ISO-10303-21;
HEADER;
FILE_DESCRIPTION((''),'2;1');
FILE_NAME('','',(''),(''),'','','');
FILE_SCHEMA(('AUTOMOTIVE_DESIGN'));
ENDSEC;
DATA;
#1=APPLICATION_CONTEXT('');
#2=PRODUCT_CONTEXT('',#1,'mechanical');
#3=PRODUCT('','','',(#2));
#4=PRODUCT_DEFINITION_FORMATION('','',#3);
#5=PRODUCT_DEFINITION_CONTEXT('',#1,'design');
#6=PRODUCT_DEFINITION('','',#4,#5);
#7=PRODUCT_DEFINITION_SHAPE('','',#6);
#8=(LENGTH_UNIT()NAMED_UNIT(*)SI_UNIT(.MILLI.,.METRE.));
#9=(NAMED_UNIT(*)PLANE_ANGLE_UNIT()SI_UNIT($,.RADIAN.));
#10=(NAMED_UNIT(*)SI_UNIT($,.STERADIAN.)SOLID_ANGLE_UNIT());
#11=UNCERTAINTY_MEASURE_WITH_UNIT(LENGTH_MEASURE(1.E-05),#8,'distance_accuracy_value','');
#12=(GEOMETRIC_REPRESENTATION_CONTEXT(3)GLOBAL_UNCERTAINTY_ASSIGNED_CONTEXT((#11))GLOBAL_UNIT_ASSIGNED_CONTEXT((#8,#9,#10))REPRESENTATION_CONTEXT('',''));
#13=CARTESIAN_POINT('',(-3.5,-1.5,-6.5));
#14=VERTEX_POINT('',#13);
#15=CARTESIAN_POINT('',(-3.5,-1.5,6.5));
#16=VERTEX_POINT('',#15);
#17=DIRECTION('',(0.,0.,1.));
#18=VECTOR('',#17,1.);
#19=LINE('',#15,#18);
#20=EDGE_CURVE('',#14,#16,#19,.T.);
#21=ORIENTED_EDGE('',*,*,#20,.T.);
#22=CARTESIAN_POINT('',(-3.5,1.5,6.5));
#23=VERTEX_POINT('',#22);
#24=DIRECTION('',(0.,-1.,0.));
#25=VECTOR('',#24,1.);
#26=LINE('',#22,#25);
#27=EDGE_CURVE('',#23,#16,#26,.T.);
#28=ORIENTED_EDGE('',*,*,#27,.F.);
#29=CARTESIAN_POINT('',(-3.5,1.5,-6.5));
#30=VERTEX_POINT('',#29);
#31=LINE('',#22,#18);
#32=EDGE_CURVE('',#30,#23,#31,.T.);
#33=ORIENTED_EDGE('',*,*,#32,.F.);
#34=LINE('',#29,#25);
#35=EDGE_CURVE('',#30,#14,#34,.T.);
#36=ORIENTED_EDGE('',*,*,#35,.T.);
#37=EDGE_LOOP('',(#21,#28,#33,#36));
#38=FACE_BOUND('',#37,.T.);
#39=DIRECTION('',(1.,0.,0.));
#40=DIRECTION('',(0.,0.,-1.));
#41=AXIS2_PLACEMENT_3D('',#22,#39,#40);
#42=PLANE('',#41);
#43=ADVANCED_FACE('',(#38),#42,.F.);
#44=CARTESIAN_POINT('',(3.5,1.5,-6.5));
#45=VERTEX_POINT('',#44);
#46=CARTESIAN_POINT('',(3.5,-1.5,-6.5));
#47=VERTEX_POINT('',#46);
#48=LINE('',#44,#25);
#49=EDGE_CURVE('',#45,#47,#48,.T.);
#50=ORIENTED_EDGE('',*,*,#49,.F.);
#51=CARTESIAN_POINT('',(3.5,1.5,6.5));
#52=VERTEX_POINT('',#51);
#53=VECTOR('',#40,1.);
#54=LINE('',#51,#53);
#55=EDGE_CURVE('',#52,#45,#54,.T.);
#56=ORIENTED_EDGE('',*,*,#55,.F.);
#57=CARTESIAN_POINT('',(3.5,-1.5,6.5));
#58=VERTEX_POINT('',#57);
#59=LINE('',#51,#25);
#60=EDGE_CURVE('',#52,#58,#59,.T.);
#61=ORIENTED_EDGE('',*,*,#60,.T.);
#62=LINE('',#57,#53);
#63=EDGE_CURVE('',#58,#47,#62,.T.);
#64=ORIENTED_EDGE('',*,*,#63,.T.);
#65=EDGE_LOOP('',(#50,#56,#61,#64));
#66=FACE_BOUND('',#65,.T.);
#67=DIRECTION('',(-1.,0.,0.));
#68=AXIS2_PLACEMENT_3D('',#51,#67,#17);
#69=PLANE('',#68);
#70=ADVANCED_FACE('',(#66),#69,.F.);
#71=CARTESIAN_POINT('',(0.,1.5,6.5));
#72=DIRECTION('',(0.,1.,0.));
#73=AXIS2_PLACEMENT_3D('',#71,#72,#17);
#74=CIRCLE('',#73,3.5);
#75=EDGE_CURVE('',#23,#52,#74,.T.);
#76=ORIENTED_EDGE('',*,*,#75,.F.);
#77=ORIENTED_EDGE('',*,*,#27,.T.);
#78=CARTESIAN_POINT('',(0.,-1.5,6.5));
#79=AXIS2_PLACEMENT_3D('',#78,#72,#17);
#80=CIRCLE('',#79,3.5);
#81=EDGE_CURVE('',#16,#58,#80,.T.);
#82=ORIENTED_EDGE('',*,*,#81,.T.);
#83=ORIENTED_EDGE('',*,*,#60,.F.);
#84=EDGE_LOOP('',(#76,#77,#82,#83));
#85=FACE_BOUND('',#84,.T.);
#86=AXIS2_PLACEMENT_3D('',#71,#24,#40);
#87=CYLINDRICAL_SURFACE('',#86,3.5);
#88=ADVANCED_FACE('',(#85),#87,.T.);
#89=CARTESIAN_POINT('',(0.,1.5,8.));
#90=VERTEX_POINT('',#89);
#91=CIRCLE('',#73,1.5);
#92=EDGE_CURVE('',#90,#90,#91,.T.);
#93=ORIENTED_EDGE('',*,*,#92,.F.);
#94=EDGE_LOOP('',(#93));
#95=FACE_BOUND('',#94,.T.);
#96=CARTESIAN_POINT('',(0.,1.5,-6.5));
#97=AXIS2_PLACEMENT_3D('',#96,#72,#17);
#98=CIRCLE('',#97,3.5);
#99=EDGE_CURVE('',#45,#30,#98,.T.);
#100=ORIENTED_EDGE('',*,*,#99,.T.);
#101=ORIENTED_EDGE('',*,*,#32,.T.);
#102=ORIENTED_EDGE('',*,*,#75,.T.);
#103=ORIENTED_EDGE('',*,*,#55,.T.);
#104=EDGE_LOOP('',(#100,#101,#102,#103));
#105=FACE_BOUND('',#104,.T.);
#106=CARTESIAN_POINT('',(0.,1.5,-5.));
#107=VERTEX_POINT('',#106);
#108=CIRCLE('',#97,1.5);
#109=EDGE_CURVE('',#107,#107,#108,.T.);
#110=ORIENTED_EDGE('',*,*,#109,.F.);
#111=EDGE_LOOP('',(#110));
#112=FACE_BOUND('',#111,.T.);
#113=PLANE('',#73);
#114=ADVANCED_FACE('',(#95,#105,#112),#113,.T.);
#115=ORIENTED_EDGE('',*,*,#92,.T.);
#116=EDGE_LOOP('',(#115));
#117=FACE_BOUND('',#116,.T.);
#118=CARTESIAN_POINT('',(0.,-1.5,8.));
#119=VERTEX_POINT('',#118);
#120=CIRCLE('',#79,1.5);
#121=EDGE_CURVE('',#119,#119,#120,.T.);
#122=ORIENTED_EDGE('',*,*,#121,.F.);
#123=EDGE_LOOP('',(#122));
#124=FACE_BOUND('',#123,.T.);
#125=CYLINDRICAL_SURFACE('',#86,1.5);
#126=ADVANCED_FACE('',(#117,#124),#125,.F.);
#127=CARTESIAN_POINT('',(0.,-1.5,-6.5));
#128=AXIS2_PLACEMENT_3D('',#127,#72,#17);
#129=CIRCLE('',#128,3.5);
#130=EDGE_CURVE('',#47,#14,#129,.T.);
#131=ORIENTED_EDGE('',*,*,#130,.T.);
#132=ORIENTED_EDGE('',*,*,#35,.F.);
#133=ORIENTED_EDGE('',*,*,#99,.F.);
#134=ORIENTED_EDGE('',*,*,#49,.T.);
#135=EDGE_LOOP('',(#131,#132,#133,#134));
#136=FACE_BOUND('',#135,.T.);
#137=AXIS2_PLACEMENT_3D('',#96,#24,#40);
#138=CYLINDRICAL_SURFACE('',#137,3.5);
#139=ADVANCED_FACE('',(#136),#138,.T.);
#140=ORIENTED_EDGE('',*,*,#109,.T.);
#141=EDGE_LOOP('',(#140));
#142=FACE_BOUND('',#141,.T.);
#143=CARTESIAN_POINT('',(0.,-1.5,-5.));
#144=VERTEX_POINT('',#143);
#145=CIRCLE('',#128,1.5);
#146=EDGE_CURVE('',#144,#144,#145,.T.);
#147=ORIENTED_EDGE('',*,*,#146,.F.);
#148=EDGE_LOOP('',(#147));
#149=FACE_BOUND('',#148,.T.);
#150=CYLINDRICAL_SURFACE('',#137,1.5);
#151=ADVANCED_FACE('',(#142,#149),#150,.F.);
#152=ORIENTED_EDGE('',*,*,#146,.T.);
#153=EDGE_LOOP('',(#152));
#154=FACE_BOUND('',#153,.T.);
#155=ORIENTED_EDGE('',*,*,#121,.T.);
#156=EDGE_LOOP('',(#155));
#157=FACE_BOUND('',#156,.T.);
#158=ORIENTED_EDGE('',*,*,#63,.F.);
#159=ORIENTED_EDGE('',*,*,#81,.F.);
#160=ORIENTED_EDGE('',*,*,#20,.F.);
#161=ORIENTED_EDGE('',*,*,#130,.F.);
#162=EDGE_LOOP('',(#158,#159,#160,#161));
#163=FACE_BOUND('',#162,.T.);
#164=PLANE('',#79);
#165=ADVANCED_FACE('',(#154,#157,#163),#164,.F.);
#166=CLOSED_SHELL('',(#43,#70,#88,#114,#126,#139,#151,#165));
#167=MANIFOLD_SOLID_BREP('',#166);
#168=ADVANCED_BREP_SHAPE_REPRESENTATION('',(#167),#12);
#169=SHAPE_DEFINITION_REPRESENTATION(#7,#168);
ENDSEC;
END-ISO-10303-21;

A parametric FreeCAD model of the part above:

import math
import FreeCAD as App
import Part
import Sketcher
from FreeCAD import Vector
Q = App.Units.Quantity

doc = App.newDocument("Part")
body = doc.addObject("PartDesign::Body", "Body")

# Sketch on XZ plane
sketch1 = body.newObject("Sketcher::SketchObject", "Sketch")
sketch1.AttachmentSupport = (doc.getObject("XZ_Plane"), [""])
sketch1.MapMode = "FlatFace"
sketch1.addGeometry([
    Part.LineSegment(Vector(-3.5, -6.5, 0), Vector(-3.5, 6.5, 0)),  # 0
    Part.ArcOfCircle(Part.Circle(Vector(0, 6.5, 0), Vector(0, 0, 1), 3.5), math.radians(0), math.radians(180)),  # 1
    Part.LineSegment(Vector(3.5, 6.5, 0), Vector(3.5, -6.5, 0)),  # 2
    Part.ArcOfCircle(Part.Circle(Vector(0, -6.5, 0), Vector(0, 0, 1), 3.5), math.radians(180), math.radians(360)),  # 3
    Part.Circle(Vector(0, 6.5, 0), Vector(0, 0, 1), 1.5),  # 4
    Part.Circle(Vector(0, -6.5, 0), Vector(0, 0, 1), 1.5),  # 5
], False)
sketch1.addConstraint([
    Sketcher.Constraint("Tangent", 0, 2, 1, 2),
    Sketcher.Constraint("Tangent", 1, 1, 2, 1),
    Sketcher.Constraint("Tangent", 2, 2, 3, 2),
    Sketcher.Constraint("Tangent", 3, 1, 0, 1),
    Sketcher.Constraint("Vertical", 0),
    Sketcher.Constraint("Vertical", 2),
    Sketcher.Constraint("Coincident", 4, 3, 1, 3),
    Sketcher.Constraint("Coincident", 5, 3, 3, 3),
    Sketcher.Constraint("Equal", 4, 5),
    Sketcher.Constraint("Symmetric", 1, 3, 3, 3, -1, 1),
    Sketcher.Constraint("Diameter", 4, Q("3 mm")),
    Sketcher.Constraint("Radius", 1, Q("3.5 mm")),
    Sketcher.Constraint("DistanceY", 0, 1, 0, 2, Q("13 mm")),
])
pad1 = body.newObject("PartDesign::Pad", "Pad")
pad1.Profile = sketch1
pad1.Length = 3
pad1.Midplane = True

doc.recompute()
